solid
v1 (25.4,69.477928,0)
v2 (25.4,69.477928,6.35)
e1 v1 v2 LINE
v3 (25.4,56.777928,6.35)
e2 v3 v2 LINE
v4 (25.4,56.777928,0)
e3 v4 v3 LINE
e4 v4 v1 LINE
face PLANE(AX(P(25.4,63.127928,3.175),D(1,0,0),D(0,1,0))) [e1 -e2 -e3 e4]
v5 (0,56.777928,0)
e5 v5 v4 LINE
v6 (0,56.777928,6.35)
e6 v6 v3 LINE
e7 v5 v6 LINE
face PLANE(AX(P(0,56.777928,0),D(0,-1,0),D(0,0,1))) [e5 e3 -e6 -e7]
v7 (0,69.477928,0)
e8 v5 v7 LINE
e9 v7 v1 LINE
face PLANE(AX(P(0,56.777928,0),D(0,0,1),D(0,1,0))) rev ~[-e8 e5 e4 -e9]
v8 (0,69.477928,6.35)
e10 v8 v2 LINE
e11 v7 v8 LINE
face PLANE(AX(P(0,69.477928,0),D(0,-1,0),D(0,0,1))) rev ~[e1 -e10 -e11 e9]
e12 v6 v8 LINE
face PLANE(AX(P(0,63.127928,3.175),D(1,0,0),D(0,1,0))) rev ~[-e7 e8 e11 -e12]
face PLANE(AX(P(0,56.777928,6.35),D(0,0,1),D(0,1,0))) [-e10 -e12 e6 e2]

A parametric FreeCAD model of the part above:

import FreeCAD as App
import Part
import Sketcher

V = App.Vector
Q = App.Units.Quantity

doc = App.newDocument("Part")
params = doc.addObject("Spreadsheet::Sheet", "Params")
for row, (alias, value) in enumerate([
    ("sketch1_width", "8 in"),
    ("sketch1_height", "4 in"),
    ("pad1_length", "2 in"),
    ("sketch2_width", "0.5 in"),
    ("sketch2_height", "0.25 in"),
    ("pad2_length", "1 in"),
], start=1):
    params.set(f"A{row}", alias)
    params.set(f"B{row}", "=" + value)
    params.setAlias(f"B{row}", alias)

body = doc.addObject("PartDesign::Body", "Body")

sketch1 = body.newObject("Sketcher::SketchObject", "Sketch")
sketch1.AttachmentSupport = (doc.getObject("XY_Plane"), [""])
sketch1.MapMode = "FlatFace"
sketch1.addGeometry(Part.LineSegment(V(-92, 69, 0), V(-92, -32, 0)), False)
sketch1.addGeometry(Part.LineSegment(V(-92, -32, 0), V(112, -32, 0)), False)
sketch1.addGeometry(Part.LineSegment(V(112, -32, 0), V(112, 69, 0)), False)
sketch1.addGeometry(Part.LineSegment(V(112, 69, 0), V(-92, 69, 0)), False)
sketch1.addConstraint(Sketcher.Constraint("Coincident", 0, 2, 1, 1))
sketch1.addConstraint(Sketcher.Constraint("Coincident", 1, 2, 2, 1))
sketch1.addConstraint(Sketcher.Constraint("Coincident", 2, 2, 3, 1))
sketch1.addConstraint(Sketcher.Constraint("Coincident", 3, 2, 0, 1))
sketch1.addConstraint(Sketcher.Constraint("Vertical", 0))
sketch1.addConstraint(Sketcher.Constraint("Horizontal", 1))
sketch1.addConstraint(Sketcher.Constraint("Vertical", 2))
sketch1.addConstraint(Sketcher.Constraint("Horizontal", 3))
sketch1.addConstraint(Sketcher.Constraint("DistanceX", 1, 1, 1, 2, Q("8 in")))
sketch1.addConstraint(Sketcher.Constraint("DistanceY", 0, 2, 0, 1, Q("4 in")))
sketch1.addConstraint(Sketcher.Constraint("DistanceY", 0, 2, -1, 1, Q("32.236958 mm")))
sketch1.addConstraint(Sketcher.Constraint("DistanceX", 0, 2, -1, 1, Q("91.550133 mm")))
sketch1.setExpression("Constraints[8]", "Params.sketch1_width")
sketch1.setExpression("Constraints[9]", "Params.sketch1_height")
pad1 = body.newObject("PartDesign::Pad", "Pad")
pad1.Profile = sketch1
pad1.setExpression("Length", "Params.pad1_length")
body2 = doc.addObject("PartDesign::Body", "Body001")

sketch2 = body2.newObject("Sketcher::SketchObject", "Sketch001")
sketch2.AttachmentSupport = (doc.getObject("YZ_Plane001"), [""])
sketch2.MapMode = "FlatFace"
sketch2.addGeometry(Part.LineSegment(V(57, 6, 0), V(57, 0, 0)), False)
sketch2.addGeometry(Part.LineSegment(V(57, 0, 0), V(69, 0, 0)), False)
sketch2.addGeometry(Part.LineSegment(V(69, 0, 0), V(69, 6, 0)), False)
sketch2.addGeometry(Part.LineSegment(V(69, 6, 0), V(57, 6, 0)), False)
sketch2.addConstraint(Sketcher.Constraint("Coincident", 0, 2, 1, 1))
sketch2.addConstraint(Sketcher.Constraint("Coincident", 1, 2, 2, 1))
sketch2.addConstraint(Sketcher.Constraint("Coincident", 2, 2, 3, 1))
sketch2.addConstraint(Sketcher.Constraint("Coincident", 3, 2, 0, 1))
sketch2.addConstraint(Sketcher.Constraint("Vertical", 0))
sketch2.addConstraint(Sketcher.Constraint("Horizontal", 1))
sketch2.addConstraint(Sketcher.Constraint("Vertical", 2))
sketch2.addConstraint(Sketcher.Constraint("Horizontal", 3))
sketch2.addConstraint(Sketcher.Constraint("PointOnObject", 0, 2, -1))
sketch2.addConstraint(Sketcher.Constraint("DistanceX", 1, 1, 1, 2, Q("0.5 in")))
sketch2.addConstraint(Sketcher.Constraint("DistanceY", 0, 2, 0, 1, Q("0.25 in")))
sketch2.addConstraint(Sketcher.Constraint("DistanceX", -1, 1, 0, 2, Q("56.777928 mm")))
sketch2.setExpression("Constraints[9]", "Params.sketch2_width")
sketch2.setExpression("Constraints[10]", "Params.sketch2_height")
pad2 = body2.newObject("PartDesign::Pad", "Pad001")
pad2.Profile = sketch2
pad2.setExpression("Length", "Params.pad2_length")
body.Visibility = False

doc.recompute()
